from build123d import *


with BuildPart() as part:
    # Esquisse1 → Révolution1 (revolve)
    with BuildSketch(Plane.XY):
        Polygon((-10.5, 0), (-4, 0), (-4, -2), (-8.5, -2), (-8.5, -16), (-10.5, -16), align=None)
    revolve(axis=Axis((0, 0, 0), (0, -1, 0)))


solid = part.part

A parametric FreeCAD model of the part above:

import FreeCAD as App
import Part
import Sketcher
Q = App.Units.Quantity

doc = App.newDocument("Part")
params = doc.addObject("Spreadsheet::Sheet", "Params")
for row, (alias, value) in enumerate([
    ("sketch1_width", "2 mm"),
    ("sketch1_height", "16 mm"),
    ("sketch1_width2", "6.5 mm"),
    ("revolution_angle", "360 deg"),
], start=1):
    params.set(f"A{row}", alias)
    params.set(f"B{row}", "=" + value)
    params.setAlias(f"B{row}", alias)

body = doc.addObject("PartDesign::Body", "Body")

# Sketch on XY plane
sketch1 = doc.addObject("Sketcher::SketchObject", "Sketch")
body.addObject(sketch1)
sketch1.AttachmentSupport = (doc.XY_Plane, [""])
sketch1.MapMode = "FlatFace"
sketch1.addGeometry([
    Part.LineSegment(App.Vector(-4, 0, 0), App.Vector(-10.5, 0, 0)),  # 0
    Part.LineSegment(App.Vector(-10.5, 0, 0), App.Vector(-10.5, -16, 0)),  # 1
    Part.LineSegment(App.Vector(-10.5, -16, 0), App.Vector(-8.5, -16, 0)),  # 2
    Part.LineSegment(App.Vector(-8.5, -16, 0), App.Vector(-8.5, -2, 0)),  # 3
    Part.LineSegment(App.Vector(-8.5, -2, 0), App.Vector(-4, -2, 0)),  # 4
    Part.LineSegment(App.Vector(-4, -2, 0), App.Vector(-4, 0, 0)),  # 5
], False)
sketch1.addConstraint([
    Sketcher.Constraint("Coincident", 0, 2, 1, 1),
    Sketcher.Constraint("Coincident", 1, 2, 2, 1),
    Sketcher.Constraint("Coincident", 2, 2, 3, 1),
    Sketcher.Constraint("Coincident", 3, 2, 4, 1),
    Sketcher.Constraint("Coincident", 4, 2, 5, 1),
    Sketcher.Constraint("Coincident", 5, 2, 0, 1),
    Sketcher.Constraint("Horizontal", 0),
    Sketcher.Constraint("Vertical", 1),
    Sketcher.Constraint("Horizontal", 2),
    Sketcher.Constraint("Vertical", 3),
    Sketcher.Constraint("Horizontal", 4),
    Sketcher.Constraint("Vertical", 5),
    Sketcher.Constraint("PointOnObject", 0, 2, -1),
    Sketcher.Constraint("Equal", 2, 5),
    Sketcher.Constraint("DistanceX", 2, 1, 2, 2, Q("2 mm")),
    Sketcher.Constraint("DistanceY", 1, 2, 1, 1, Q("16 mm")),
    Sketcher.Constraint("DistanceX", 0, 2, 0, 1, Q("6.5 mm")),
    Sketcher.Constraint("DistanceX", 4, 2, -1, 1, Q("4 mm")),
])
sketch1.setExpression("Constraints[14]", "Params.sketch1_width")
sketch1.setExpression("Constraints[15]", "Params.sketch1_height")
sketch1.setExpression("Constraints[16]", "Params.sketch1_width2")
revolution = doc.addObject("PartDesign::Revolution", "Revolution")
body.addObject(revolution)
revolution.Profile = sketch1
revolution.ReferenceAxis = (sketch1, ["V_Axis"])
revolution.setExpression("Angle", "Params.revolution_angle")

doc.recompute()
